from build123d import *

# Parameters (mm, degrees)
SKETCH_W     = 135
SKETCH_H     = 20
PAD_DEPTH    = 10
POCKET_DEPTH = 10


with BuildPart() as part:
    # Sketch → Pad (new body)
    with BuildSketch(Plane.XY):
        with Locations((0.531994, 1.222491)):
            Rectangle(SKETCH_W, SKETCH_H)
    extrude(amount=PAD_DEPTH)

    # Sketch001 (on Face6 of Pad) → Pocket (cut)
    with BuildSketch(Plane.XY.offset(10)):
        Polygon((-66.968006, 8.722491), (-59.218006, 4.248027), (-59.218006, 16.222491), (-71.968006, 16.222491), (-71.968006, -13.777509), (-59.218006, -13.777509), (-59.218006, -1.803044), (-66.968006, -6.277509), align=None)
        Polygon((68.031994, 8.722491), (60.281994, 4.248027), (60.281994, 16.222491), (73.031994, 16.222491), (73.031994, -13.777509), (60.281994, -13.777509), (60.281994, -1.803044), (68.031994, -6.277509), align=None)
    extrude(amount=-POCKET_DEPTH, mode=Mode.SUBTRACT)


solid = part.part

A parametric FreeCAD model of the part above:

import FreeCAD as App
import Part
import Sketcher
Q = App.Units.Quantity


def add_polygon(sketch, points):
    """Adds a closed chain of lines whose ends are joined by coincident constraints."""
    first, n = sketch.GeometryCount, len(points)
    for a, b in zip(points, points[1:] + points[:1]):
        sketch.addGeometry(Part.LineSegment(App.Vector(*a, 0), App.Vector(*b, 0)), False)
    for i in range(n):
        sketch.addConstraint(Sketcher.Constraint("Coincident", first + i, 2, first + (i + 1) % n, 1))

doc = App.newDocument("Part")
body = doc.addObject("PartDesign::Body", "Body")

# Sketch on XY plane
sketch1 = body.newObject("Sketcher::SketchObject", "Sketch")
sketch1.AttachmentSupport = (doc.getObject("XY_Plane"), [""])
sketch1.MapMode = "FlatFace"
add_polygon(sketch1, [(-67, 11), (-67, -9), (68, -9), (68, 11)])  # lines 0-3
sketch1.addConstraint([
    Sketcher.Constraint("Vertical", 0),
    Sketcher.Constraint("Horizontal", 1),
    Sketcher.Constraint("Vertical", 2),
    Sketcher.Constraint("Horizontal", 3),
    Sketcher.Constraint("DistanceX", 1, 1, 1, 2, Q("135 mm")),
    Sketcher.Constraint("DistanceY", 0, 2, 0, 1, Q("20 mm")),
    Sketcher.Constraint("DistanceY", 0, 2, -1, 1, Q("8.777509 mm")),
    Sketcher.Constraint("DistanceX", 0, 2, -1, 1, Q("66.968006 mm")),
])
pad1 = body.newObject("PartDesign::Pad", "Pad")
pad1.Profile = sketch1
pad1.Length = 10

# Sketch on XY plane
sketch2 = body.newObject("Sketcher::SketchObject", "Sketch001")
sketch2.AttachmentSupport = (doc.getObject("XY_Plane"), [""])
sketch2.MapMode = "FlatFace"
sketch2.AttachmentOffset = App.Placement(App.Vector(0, 0, 10), App.Rotation())
add_polygon(sketch2, [(-67, 9), (-59, 4), (-59, 16), (-72, 16), (-72, -14), (-59, -14), (-59, -2), (-67, -6)])  # lines 0-7
add_polygon(sketch2, [(60, 4), (68, 9), (68, -6), (60, -2), (60, -14), (73, -14), (73, 16), (60, 16)])  # lines 8-15
sketch2.addConstraint([
    Sketcher.Constraint("Vertical", 1),
    Sketcher.Constraint("Horizontal", 2),
    Sketcher.Constraint("Vertical", 3),
    Sketcher.Constraint("Horizontal", 4),
    Sketcher.Constraint("Vertical", 5),
    Sketcher.Constraint("Vertical", 7),
    Sketcher.Constraint("Vertical", 9),
    Sketcher.Constraint("Vertical", 11),
    Sketcher.Constraint("Horizontal", 12),
    Sketcher.Constraint("Vertical", 13),
    Sketcher.Constraint("Horizontal", 14),
    Sketcher.Constraint("Vertical", 15),
    Sketcher.Constraint("Parallel", 6, 8),
    Sketcher.Constraint("Parallel", 0, 10),
    Sketcher.Constraint("Horizontal", 7, 2, 8, 2),
    Sketcher.Constraint("Horizontal", 6, 2, 9, 2),
    Sketcher.Constraint("Horizontal", 5, 2, 10, 2),
    Sketcher.Constraint("Horizontal", 4, 2, 11, 2),
    Sketcher.Constraint("Horizontal", 2, 2, 13, 2),
    Sketcher.Constraint("Horizontal", 0, 2, 15, 2),
    Sketcher.Constraint("Vertical", 1, 2, 4, 2),
    Sketcher.Constraint("Vertical", 11, 2, 14, 2),
    Sketcher.Constraint("Equal", 4, 12),
    Sketcher.Constraint("Equal", 1, 5),
    Sketcher.Constraint("DistanceY", 3, 2, 3, 1, Q("30 mm")),
    Sketcher.Constraint("DistanceY", 7, 1, 7, 2, Q("15 mm")),
    Sketcher.Constraint("Angle", 0, Q("-29.999997 deg")),
    Sketcher.Constraint("DistanceX", 3, 2, 6, 2, Q("5 mm")),
    Sketcher.Constraint("DistanceX", 7, 2, 8, 2, Q("135 mm")),
    Sketcher.Constraint("DistanceX", 2, 2, 2, 1, Q("12.75 mm")),
    Sketcher.Constraint("DistanceY", -1, 1, 1, 2, Q("16.222491 mm")),
    Sketcher.Constraint("DistanceX", 0, 2, -1, 1, Q("59.218006 mm")),
])
pocket1 = body.newObject("PartDesign::Pocket", "Pocket")
pocket1.Profile = sketch2
pocket1.Length = 10

doc.recompute()
